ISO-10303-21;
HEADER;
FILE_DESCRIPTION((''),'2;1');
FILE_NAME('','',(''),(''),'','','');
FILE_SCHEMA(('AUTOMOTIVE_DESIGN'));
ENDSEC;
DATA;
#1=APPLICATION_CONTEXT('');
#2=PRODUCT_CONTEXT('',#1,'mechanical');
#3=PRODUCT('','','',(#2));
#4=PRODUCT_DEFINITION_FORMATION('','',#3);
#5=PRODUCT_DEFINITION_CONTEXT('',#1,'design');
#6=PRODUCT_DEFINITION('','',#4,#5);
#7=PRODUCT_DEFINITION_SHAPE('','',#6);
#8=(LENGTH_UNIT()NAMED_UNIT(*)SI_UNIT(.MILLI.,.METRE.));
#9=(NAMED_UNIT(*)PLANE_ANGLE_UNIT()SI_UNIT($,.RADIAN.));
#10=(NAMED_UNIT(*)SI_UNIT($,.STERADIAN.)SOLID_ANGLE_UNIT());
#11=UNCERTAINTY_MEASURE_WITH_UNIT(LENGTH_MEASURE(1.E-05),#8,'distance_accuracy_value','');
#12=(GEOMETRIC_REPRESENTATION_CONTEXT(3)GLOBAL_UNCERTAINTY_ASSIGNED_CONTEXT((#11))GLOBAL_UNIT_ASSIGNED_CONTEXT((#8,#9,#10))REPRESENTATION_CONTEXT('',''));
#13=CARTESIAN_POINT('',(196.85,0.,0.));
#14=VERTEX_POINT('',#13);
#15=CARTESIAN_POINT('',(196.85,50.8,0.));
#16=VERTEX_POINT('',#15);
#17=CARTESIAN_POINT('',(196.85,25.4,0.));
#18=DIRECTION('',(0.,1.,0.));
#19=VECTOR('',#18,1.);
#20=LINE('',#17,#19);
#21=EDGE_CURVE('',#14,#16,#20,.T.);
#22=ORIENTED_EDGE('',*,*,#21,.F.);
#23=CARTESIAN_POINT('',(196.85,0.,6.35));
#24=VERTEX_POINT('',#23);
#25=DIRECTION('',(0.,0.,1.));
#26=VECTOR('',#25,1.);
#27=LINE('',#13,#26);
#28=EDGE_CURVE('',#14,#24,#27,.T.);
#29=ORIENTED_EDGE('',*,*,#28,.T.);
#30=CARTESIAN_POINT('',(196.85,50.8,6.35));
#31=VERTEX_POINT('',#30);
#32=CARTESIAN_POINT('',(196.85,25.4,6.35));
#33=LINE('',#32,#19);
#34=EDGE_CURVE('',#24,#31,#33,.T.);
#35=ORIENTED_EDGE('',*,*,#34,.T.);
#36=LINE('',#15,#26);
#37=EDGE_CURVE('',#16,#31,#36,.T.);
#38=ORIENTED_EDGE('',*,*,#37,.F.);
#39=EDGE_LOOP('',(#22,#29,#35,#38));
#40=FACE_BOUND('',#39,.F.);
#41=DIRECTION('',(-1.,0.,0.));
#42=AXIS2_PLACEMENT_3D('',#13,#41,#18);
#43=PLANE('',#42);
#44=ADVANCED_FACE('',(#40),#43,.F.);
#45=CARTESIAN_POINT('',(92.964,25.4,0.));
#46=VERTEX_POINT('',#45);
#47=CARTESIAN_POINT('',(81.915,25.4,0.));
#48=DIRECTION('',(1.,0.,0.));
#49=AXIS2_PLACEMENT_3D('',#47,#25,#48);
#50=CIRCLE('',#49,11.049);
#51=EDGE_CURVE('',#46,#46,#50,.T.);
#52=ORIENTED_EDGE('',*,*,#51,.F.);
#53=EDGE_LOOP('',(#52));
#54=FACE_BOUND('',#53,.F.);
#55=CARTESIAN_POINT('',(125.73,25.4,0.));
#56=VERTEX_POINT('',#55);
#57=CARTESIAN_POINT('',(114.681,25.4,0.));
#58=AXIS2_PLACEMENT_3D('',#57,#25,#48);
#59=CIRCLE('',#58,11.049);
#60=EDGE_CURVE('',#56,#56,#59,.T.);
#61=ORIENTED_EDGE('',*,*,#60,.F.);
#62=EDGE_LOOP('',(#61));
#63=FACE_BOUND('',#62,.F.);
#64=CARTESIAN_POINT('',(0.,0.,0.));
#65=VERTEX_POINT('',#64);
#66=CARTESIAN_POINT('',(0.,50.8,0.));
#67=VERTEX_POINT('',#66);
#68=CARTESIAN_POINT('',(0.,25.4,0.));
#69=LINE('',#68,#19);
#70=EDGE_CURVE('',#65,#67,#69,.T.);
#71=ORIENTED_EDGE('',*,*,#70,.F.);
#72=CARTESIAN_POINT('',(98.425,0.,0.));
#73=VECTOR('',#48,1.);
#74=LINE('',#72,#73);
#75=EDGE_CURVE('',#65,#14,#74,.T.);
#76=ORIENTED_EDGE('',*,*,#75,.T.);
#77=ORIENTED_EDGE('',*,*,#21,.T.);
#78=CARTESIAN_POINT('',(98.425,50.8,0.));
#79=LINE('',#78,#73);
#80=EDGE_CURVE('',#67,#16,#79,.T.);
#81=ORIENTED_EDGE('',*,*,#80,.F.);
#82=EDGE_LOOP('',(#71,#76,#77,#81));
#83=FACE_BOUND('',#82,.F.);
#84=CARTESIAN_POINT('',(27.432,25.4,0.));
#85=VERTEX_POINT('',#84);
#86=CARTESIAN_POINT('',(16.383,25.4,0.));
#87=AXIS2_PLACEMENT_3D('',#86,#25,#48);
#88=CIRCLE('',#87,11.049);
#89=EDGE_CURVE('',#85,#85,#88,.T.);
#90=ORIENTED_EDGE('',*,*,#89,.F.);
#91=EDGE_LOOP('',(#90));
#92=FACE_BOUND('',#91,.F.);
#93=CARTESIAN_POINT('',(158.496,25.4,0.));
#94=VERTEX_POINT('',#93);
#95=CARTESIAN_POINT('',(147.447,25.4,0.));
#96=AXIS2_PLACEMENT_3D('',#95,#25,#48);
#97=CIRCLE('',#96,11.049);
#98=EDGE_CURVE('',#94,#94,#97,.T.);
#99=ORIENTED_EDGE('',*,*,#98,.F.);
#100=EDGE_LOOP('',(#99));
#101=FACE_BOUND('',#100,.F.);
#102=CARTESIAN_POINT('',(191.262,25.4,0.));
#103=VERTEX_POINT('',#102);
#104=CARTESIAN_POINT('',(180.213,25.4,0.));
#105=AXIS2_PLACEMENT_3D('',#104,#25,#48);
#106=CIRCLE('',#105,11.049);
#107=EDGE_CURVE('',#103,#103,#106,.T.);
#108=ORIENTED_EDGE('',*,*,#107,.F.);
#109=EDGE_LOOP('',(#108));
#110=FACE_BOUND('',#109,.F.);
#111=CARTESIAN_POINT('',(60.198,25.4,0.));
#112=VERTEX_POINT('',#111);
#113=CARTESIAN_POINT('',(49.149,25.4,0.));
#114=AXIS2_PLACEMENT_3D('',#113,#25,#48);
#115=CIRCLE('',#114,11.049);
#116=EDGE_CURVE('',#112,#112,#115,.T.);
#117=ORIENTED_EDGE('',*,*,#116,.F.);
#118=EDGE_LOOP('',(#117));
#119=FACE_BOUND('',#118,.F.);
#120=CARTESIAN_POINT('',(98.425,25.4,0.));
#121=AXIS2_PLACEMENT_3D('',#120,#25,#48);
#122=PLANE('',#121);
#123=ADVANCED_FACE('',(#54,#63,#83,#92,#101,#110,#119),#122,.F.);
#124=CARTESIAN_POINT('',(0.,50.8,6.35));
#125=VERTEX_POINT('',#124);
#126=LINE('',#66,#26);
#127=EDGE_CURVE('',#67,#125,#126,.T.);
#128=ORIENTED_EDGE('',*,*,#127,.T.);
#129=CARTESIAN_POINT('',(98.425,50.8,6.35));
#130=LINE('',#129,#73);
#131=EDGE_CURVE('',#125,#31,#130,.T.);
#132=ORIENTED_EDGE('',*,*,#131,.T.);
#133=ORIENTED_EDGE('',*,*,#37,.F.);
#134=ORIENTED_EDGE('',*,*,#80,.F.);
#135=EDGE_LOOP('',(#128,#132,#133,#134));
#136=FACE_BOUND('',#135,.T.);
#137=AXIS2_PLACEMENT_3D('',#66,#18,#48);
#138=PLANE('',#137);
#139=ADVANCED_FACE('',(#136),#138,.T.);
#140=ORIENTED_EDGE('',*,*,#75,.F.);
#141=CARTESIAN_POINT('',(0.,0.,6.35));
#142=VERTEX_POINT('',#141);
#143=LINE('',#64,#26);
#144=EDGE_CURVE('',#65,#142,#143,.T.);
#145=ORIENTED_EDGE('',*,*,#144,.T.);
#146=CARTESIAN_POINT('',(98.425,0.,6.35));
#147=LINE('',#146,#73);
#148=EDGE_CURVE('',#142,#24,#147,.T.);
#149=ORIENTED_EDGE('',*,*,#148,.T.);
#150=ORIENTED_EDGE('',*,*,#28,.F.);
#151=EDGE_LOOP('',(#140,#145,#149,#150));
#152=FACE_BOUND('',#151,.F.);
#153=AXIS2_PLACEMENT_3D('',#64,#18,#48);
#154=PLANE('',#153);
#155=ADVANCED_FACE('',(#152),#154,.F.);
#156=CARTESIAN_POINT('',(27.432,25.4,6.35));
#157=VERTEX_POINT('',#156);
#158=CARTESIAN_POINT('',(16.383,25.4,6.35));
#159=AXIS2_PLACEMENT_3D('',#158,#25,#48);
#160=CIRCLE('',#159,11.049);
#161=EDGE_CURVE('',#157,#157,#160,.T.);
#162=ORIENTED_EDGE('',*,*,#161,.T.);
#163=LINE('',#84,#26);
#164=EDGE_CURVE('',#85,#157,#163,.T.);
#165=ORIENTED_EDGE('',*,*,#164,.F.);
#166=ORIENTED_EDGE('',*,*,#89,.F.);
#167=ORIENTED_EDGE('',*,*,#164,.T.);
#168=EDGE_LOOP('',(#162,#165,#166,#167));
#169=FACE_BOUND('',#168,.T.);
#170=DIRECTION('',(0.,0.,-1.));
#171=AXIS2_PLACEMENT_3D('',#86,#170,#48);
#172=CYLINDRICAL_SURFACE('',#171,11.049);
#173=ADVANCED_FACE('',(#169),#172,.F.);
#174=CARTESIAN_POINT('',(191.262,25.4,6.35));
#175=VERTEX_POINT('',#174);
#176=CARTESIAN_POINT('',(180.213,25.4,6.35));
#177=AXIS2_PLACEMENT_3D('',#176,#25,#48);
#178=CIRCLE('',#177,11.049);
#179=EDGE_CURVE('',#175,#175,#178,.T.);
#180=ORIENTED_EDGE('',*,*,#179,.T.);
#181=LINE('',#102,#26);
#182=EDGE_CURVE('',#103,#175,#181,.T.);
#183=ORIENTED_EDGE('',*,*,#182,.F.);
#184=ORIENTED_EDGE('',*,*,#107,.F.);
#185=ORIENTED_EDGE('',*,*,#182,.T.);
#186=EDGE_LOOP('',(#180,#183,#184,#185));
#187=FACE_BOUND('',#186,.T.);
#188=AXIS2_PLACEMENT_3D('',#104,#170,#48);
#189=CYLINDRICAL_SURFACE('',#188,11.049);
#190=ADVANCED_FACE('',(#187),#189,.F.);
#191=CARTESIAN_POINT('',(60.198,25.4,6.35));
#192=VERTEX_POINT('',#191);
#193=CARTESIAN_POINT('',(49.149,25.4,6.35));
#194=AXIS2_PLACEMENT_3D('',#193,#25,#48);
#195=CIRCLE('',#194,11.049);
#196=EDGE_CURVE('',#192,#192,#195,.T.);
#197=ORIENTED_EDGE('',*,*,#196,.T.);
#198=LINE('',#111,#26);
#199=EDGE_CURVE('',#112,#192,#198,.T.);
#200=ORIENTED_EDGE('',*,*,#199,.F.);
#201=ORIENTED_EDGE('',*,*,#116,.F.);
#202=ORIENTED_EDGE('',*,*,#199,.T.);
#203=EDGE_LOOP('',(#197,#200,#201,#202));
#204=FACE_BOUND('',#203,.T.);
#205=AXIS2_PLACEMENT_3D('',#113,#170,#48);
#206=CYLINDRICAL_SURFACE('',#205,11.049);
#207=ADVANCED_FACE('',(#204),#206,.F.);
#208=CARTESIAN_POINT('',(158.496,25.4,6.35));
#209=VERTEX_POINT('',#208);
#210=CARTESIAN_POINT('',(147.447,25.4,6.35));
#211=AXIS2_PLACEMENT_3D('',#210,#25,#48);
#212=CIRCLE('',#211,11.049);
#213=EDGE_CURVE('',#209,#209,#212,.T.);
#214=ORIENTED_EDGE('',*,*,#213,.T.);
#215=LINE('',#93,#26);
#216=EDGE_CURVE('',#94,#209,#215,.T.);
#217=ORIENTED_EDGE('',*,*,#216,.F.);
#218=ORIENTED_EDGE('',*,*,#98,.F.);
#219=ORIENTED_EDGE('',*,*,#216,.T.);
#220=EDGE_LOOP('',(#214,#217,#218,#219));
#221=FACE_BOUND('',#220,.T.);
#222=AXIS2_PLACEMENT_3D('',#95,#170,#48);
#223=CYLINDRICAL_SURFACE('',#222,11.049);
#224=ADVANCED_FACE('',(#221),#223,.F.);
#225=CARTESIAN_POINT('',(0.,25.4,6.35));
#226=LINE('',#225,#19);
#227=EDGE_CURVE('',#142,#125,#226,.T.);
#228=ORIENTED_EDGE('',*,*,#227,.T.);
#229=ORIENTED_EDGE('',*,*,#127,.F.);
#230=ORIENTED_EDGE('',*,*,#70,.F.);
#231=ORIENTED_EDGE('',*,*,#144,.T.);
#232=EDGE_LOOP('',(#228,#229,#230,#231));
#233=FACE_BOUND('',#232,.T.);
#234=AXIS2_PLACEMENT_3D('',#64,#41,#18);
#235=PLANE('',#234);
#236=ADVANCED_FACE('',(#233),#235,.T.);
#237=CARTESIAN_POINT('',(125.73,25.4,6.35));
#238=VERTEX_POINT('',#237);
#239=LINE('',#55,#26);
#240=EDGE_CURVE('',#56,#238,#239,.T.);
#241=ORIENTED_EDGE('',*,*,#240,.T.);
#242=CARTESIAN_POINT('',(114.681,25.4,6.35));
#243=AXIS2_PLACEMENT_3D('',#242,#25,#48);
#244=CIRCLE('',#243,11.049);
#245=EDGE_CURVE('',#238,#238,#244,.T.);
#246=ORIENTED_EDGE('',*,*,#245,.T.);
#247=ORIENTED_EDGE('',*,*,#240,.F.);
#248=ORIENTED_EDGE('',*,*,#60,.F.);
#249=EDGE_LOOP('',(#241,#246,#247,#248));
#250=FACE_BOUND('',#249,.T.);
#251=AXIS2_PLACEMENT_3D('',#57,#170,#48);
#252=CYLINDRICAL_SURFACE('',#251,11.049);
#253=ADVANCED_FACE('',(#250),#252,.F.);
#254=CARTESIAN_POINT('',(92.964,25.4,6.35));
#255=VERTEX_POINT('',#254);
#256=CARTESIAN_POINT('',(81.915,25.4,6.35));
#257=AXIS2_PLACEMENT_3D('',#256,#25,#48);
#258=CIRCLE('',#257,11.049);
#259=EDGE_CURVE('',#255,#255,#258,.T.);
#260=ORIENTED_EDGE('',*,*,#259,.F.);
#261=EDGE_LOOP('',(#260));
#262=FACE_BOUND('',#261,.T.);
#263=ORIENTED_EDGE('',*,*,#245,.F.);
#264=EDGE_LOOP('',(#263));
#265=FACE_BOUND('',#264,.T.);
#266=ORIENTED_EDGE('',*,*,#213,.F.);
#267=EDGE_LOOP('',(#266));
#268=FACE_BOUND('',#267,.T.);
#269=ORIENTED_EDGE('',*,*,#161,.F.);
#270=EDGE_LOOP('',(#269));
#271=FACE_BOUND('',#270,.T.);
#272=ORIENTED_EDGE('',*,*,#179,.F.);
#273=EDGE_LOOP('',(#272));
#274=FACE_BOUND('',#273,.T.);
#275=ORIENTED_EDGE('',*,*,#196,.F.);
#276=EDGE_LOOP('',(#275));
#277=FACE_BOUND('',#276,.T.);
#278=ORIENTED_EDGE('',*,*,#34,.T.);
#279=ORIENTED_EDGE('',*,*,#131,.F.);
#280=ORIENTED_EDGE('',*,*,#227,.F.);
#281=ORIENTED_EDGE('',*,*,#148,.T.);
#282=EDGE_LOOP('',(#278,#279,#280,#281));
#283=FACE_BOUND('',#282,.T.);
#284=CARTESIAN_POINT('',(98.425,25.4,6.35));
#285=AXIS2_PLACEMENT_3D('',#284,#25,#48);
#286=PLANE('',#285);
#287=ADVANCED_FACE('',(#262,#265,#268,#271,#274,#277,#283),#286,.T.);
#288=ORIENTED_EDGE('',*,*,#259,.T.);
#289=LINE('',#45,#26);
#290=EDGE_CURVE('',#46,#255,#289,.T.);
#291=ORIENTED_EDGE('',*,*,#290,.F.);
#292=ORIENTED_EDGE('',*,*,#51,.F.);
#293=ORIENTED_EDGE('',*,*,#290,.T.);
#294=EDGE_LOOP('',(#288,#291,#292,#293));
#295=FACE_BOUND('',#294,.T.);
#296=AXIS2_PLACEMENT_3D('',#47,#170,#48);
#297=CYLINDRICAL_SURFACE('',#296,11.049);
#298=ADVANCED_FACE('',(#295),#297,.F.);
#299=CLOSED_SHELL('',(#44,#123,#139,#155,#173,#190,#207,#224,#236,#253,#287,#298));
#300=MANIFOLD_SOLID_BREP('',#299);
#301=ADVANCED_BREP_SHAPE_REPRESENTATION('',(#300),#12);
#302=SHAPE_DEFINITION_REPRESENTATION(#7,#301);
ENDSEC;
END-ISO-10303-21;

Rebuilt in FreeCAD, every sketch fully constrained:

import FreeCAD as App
import Part
import Sketcher

V = App.Vector
Q = App.Units.Quantity

doc = App.newDocument("Part")
params = doc.addObject("Spreadsheet::Sheet", "Params")
for row, (alias, value) in enumerate([
    ("sketch1_diameter", "0.87 in"),
    ("sketch1_height", "2 in"),
    ("sketch1_width", "7.75 in"),
    ("pad1_length", "0.25 in"),
], start=1):
    params.set(f"A{row}", alias)
    params.set(f"B{row}", "=" + value)
    params.setAlias(f"B{row}", alias)

body = doc.addObject("PartDesign::Body", "Body")

# Sketch on XY plane
sketch1 = body.newObject("Sketcher::SketchObject", "Sketch")
sketch1.AttachmentSupport = (doc.getObject("XY_Plane"), [""])
sketch1.MapMode = "FlatFace"
sketch1.addGeometry([
    Part.LineSegment(V(0, 50.8, 0), V(0, 0, 0)),  # 0
    Part.LineSegment(V(0, 0, 0), V(196.85, 0, 0)),  # 1
    Part.LineSegment(V(196.85, 0, 0), V(196.85, 50.8, 0)),  # 2
    Part.LineSegment(V(196.85, 50.8, 0), V(0, 50.8, 0)),  # 3
    Part.Circle(V(16.383, 25.4, 0), V(0, 0, 1), 11.049),  # 4
    Part.Circle(V(49.149, 25.4, 0), V(0, 0, 1), 11.049),  # 5
    Part.Circle(V(81.915, 25.4, 0), V(0, 0, 1), 11.049),  # 6
    Part.Circle(V(114.681, 25.4, 0), V(0, 0, 1), 11.049),  # 7
    Part.Circle(V(147.447, 25.4, 0), V(0, 0, 1), 11.049),  # 8
    Part.Circle(V(180.213, 25.4, 0), V(0, 0, 1), 11.049),  # 9
], False)
sketch1.addConstraint([
    Sketcher.Constraint("Coincident", 0, 2, 1, 1),
    Sketcher.Constraint("Coincident", 1, 2, 2, 1),
    Sketcher.Constraint("Coincident", 2, 2, 3, 1),
    Sketcher.Constraint("Coincident", 3, 2, 0, 1),
    Sketcher.Constraint("Vertical", 0),
    Sketcher.Constraint("Horizontal", 1),
    Sketcher.Constraint("Vertical", 2),
    Sketcher.Constraint("Horizontal", 3),
    Sketcher.Constraint("Coincident", 0, 2, -1, 1),
    Sketcher.Constraint("Equal", 4, 5),
    Sketcher.Constraint("Equal", 5, 6),
    Sketcher.Constraint("Equal", 6, 7),
    Sketcher.Constraint("Equal", 7, 8),
    Sketcher.Constraint("Equal", 8, 9),
    Sketcher.Constraint("Horizontal", 4, 3, 5, 3),
    Sketcher.Constraint("Horizontal", 5, 3, 6, 3),
    Sketcher.Constraint("Horizontal", 6, 3, 7, 3),
    Sketcher.Constraint("Horizontal", 7, 3, 8, 3),
    Sketcher.Constraint("Horizontal", 8, 3, 9, 3),
    Sketcher.Constraint("Diameter", 4, Q("0.87 in")),
    Sketcher.Constraint("DistanceY", 0, 2, 0, 1, Q("2 in")),
    Sketcher.Constraint("DistanceY", -1, 1, 4, 3, Q("1 in")),
    Sketcher.Constraint("DistanceX", 1, 1, 1, 2, Q("7.75 in")),
    Sketcher.Constraint("DistanceX", 4, 3, 5, 3, Q("1.29 in")),
    Sketcher.Constraint("DistanceX", 5, 3, 6, 3, Q("1.29 in")),
    Sketcher.Constraint("DistanceX", 6, 3, 7, 3, Q("1.29 in")),
    Sketcher.Constraint("DistanceX", 7, 3, 8, 3, Q("1.29 in")),
    Sketcher.Constraint("DistanceX", 8, 3, 9, 3, Q("1.29 in")),
    Sketcher.Constraint("DistanceX", -1, 1, 4, 3, Q("0.645 in")),
])
sketch1.setExpression("Constraints[19]", "Params.sketch1_diameter")
sketch1.setExpression("Constraints[20]", "Params.sketch1_height")
sketch1.setExpression("Constraints[22]", "Params.sketch1_width")
pad1 = body.newObject("PartDesign::Pad", "Pad")
pad1.Profile = sketch1
pad1.setExpression("Length", "Params.pad1_length")

doc.recompute()
